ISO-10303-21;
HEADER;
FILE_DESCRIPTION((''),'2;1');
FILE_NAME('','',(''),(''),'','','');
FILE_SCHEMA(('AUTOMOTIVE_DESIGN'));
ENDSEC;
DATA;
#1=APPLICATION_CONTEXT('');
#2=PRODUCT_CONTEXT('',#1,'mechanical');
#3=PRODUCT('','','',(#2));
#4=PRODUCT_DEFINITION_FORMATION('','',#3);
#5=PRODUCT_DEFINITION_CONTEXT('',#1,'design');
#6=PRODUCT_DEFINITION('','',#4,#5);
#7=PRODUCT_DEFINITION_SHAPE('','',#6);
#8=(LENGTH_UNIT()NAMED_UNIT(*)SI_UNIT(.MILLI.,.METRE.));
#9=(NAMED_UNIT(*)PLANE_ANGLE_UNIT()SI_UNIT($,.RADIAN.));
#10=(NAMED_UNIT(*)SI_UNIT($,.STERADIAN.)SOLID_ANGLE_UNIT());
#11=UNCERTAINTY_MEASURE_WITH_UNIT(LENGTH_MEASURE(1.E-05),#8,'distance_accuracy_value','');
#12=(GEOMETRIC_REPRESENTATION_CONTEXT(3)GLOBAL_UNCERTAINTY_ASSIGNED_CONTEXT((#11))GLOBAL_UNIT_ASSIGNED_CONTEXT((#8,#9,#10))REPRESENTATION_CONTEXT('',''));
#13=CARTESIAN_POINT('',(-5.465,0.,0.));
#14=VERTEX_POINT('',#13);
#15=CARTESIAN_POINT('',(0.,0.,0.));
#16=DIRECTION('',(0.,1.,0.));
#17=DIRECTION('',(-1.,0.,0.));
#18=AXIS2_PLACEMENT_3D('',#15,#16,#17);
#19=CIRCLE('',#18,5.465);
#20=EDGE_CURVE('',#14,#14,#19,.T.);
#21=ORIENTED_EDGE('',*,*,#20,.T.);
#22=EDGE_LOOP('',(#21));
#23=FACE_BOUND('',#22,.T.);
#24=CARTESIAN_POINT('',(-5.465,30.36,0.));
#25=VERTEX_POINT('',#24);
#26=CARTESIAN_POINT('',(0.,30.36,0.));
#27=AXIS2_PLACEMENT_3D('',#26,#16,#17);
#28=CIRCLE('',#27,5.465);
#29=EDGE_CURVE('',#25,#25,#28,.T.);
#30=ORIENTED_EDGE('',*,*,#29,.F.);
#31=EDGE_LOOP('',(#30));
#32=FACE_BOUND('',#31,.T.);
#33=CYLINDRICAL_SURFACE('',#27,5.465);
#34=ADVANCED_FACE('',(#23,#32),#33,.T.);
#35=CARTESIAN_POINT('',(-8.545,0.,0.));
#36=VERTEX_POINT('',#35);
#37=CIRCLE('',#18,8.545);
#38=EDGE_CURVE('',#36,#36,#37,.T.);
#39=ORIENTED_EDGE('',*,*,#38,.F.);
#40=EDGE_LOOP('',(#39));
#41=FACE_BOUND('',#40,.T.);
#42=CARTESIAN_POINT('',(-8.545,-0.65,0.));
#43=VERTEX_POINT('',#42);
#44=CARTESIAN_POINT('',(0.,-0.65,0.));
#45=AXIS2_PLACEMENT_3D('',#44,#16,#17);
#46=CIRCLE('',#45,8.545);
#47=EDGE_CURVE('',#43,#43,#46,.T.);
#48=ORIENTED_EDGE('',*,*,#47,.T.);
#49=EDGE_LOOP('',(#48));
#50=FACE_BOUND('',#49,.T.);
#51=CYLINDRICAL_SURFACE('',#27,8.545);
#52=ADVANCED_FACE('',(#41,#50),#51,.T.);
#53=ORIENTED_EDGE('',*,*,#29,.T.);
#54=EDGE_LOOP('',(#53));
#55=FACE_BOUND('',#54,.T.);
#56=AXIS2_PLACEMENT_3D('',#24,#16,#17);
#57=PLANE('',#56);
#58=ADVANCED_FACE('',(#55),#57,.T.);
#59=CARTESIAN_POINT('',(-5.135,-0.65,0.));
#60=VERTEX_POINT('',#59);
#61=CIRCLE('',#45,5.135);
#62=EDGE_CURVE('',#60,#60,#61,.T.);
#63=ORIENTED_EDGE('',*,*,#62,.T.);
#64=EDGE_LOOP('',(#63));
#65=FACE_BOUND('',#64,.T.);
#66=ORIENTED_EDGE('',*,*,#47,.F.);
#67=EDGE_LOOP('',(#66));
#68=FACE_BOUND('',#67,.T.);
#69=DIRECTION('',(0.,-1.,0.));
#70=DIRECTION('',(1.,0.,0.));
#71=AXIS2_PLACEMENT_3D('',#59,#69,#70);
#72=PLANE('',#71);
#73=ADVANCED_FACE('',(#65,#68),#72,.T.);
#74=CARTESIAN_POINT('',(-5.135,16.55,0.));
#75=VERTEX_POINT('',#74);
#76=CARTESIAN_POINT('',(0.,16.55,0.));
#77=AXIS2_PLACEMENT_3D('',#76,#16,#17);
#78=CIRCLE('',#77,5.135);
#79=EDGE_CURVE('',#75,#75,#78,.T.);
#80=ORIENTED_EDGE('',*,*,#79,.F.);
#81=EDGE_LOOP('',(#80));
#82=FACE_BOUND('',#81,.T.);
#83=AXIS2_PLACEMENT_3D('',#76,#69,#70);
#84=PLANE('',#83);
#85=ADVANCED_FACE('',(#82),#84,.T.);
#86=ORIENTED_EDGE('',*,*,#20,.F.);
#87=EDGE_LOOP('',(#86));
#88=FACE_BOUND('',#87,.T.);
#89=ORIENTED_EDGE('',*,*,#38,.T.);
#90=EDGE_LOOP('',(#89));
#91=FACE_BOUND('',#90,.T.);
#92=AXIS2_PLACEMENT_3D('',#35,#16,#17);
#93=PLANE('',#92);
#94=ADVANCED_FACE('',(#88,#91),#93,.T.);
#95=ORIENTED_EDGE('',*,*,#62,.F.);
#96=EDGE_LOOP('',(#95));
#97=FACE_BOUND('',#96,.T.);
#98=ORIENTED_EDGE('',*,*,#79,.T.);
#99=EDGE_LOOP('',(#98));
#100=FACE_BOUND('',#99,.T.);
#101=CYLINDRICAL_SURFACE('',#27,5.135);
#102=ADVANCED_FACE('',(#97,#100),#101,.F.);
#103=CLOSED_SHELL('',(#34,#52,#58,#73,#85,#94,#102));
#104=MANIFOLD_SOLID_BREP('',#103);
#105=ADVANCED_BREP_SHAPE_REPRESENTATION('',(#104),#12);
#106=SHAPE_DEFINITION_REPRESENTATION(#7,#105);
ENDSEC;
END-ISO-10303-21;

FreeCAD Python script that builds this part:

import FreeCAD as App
import Part
import Sketcher


def add_polygon(sketch, points):
    """Adds a closed chain of lines whose ends are joined by coincident constraints."""
    first, n = sketch.GeometryCount, len(points)
    for a, b in zip(points, points[1:] + points[:1]):
        sketch.addGeometry(Part.LineSegment(App.Vector(*a, 0), App.Vector(*b, 0)), False)
    for i in range(n):
        sketch.addConstraint(Sketcher.Constraint("Coincident", first + i, 2, first + (i + 1) % n, 1))

doc = App.newDocument("Part")
body = doc.addObject("PartDesign::Body", "Body")

# Sketch on XY plane
sketch1 = doc.addObject("Sketcher::SketchObject", "Sketch")
body.addObject(sketch1)
sketch1.AttachmentSupport = (doc.XY_Plane, [""])
sketch1.MapMode = "FlatFace"
add_polygon(sketch1, [(-5.465, 0), (-8.545, 0), (-8.545, -0.65), (-5.135, -0.65), (-5.135, 16.55), (0, 16.55), (0, 30.36), (-5.465, 30.36)])  # lines 0-7
sketch1.addConstraint([
    Sketcher.Constraint("Horizontal", 0),
    Sketcher.Constraint("Vertical", 1),
    Sketcher.Constraint("Horizontal", 2),
    Sketcher.Constraint("Vertical", 3),
    Sketcher.Constraint("Horizontal", 4),
    Sketcher.Constraint("Vertical", 5),
    Sketcher.Constraint("Horizontal", 6),
    Sketcher.Constraint("Vertical", 7),
    Sketcher.Constraint("PointOnObject", 0, 2, -1),
    Sketcher.Constraint("PointOnObject", 4, 2, -2),
    Sketcher.Constraint("DistanceY", 3, 1, 3, 2, 17.2),
    Sketcher.Constraint("DistanceX", 0, 2, 0, 1, 3.08),
    Sketcher.Constraint("DistanceX", 2, 1, 2, 2, 3.41),
    Sketcher.Constraint("DistanceY", 1, 2, 1, 1, 0.65),
    Sketcher.Constraint("DistanceY", 5, 1, 5, 2, 13.81),
    Sketcher.Constraint("DistanceX", 4, 1, 4, 2, 5.135),
])
revolution = doc.addObject("PartDesign::Revolution", "Revolution")
body.addObject(revolution)
revolution.Profile = sketch1
revolution.ReferenceAxis = (sketch1, ["V_Axis"])
revolution.Angle = 360

doc.recompute()
